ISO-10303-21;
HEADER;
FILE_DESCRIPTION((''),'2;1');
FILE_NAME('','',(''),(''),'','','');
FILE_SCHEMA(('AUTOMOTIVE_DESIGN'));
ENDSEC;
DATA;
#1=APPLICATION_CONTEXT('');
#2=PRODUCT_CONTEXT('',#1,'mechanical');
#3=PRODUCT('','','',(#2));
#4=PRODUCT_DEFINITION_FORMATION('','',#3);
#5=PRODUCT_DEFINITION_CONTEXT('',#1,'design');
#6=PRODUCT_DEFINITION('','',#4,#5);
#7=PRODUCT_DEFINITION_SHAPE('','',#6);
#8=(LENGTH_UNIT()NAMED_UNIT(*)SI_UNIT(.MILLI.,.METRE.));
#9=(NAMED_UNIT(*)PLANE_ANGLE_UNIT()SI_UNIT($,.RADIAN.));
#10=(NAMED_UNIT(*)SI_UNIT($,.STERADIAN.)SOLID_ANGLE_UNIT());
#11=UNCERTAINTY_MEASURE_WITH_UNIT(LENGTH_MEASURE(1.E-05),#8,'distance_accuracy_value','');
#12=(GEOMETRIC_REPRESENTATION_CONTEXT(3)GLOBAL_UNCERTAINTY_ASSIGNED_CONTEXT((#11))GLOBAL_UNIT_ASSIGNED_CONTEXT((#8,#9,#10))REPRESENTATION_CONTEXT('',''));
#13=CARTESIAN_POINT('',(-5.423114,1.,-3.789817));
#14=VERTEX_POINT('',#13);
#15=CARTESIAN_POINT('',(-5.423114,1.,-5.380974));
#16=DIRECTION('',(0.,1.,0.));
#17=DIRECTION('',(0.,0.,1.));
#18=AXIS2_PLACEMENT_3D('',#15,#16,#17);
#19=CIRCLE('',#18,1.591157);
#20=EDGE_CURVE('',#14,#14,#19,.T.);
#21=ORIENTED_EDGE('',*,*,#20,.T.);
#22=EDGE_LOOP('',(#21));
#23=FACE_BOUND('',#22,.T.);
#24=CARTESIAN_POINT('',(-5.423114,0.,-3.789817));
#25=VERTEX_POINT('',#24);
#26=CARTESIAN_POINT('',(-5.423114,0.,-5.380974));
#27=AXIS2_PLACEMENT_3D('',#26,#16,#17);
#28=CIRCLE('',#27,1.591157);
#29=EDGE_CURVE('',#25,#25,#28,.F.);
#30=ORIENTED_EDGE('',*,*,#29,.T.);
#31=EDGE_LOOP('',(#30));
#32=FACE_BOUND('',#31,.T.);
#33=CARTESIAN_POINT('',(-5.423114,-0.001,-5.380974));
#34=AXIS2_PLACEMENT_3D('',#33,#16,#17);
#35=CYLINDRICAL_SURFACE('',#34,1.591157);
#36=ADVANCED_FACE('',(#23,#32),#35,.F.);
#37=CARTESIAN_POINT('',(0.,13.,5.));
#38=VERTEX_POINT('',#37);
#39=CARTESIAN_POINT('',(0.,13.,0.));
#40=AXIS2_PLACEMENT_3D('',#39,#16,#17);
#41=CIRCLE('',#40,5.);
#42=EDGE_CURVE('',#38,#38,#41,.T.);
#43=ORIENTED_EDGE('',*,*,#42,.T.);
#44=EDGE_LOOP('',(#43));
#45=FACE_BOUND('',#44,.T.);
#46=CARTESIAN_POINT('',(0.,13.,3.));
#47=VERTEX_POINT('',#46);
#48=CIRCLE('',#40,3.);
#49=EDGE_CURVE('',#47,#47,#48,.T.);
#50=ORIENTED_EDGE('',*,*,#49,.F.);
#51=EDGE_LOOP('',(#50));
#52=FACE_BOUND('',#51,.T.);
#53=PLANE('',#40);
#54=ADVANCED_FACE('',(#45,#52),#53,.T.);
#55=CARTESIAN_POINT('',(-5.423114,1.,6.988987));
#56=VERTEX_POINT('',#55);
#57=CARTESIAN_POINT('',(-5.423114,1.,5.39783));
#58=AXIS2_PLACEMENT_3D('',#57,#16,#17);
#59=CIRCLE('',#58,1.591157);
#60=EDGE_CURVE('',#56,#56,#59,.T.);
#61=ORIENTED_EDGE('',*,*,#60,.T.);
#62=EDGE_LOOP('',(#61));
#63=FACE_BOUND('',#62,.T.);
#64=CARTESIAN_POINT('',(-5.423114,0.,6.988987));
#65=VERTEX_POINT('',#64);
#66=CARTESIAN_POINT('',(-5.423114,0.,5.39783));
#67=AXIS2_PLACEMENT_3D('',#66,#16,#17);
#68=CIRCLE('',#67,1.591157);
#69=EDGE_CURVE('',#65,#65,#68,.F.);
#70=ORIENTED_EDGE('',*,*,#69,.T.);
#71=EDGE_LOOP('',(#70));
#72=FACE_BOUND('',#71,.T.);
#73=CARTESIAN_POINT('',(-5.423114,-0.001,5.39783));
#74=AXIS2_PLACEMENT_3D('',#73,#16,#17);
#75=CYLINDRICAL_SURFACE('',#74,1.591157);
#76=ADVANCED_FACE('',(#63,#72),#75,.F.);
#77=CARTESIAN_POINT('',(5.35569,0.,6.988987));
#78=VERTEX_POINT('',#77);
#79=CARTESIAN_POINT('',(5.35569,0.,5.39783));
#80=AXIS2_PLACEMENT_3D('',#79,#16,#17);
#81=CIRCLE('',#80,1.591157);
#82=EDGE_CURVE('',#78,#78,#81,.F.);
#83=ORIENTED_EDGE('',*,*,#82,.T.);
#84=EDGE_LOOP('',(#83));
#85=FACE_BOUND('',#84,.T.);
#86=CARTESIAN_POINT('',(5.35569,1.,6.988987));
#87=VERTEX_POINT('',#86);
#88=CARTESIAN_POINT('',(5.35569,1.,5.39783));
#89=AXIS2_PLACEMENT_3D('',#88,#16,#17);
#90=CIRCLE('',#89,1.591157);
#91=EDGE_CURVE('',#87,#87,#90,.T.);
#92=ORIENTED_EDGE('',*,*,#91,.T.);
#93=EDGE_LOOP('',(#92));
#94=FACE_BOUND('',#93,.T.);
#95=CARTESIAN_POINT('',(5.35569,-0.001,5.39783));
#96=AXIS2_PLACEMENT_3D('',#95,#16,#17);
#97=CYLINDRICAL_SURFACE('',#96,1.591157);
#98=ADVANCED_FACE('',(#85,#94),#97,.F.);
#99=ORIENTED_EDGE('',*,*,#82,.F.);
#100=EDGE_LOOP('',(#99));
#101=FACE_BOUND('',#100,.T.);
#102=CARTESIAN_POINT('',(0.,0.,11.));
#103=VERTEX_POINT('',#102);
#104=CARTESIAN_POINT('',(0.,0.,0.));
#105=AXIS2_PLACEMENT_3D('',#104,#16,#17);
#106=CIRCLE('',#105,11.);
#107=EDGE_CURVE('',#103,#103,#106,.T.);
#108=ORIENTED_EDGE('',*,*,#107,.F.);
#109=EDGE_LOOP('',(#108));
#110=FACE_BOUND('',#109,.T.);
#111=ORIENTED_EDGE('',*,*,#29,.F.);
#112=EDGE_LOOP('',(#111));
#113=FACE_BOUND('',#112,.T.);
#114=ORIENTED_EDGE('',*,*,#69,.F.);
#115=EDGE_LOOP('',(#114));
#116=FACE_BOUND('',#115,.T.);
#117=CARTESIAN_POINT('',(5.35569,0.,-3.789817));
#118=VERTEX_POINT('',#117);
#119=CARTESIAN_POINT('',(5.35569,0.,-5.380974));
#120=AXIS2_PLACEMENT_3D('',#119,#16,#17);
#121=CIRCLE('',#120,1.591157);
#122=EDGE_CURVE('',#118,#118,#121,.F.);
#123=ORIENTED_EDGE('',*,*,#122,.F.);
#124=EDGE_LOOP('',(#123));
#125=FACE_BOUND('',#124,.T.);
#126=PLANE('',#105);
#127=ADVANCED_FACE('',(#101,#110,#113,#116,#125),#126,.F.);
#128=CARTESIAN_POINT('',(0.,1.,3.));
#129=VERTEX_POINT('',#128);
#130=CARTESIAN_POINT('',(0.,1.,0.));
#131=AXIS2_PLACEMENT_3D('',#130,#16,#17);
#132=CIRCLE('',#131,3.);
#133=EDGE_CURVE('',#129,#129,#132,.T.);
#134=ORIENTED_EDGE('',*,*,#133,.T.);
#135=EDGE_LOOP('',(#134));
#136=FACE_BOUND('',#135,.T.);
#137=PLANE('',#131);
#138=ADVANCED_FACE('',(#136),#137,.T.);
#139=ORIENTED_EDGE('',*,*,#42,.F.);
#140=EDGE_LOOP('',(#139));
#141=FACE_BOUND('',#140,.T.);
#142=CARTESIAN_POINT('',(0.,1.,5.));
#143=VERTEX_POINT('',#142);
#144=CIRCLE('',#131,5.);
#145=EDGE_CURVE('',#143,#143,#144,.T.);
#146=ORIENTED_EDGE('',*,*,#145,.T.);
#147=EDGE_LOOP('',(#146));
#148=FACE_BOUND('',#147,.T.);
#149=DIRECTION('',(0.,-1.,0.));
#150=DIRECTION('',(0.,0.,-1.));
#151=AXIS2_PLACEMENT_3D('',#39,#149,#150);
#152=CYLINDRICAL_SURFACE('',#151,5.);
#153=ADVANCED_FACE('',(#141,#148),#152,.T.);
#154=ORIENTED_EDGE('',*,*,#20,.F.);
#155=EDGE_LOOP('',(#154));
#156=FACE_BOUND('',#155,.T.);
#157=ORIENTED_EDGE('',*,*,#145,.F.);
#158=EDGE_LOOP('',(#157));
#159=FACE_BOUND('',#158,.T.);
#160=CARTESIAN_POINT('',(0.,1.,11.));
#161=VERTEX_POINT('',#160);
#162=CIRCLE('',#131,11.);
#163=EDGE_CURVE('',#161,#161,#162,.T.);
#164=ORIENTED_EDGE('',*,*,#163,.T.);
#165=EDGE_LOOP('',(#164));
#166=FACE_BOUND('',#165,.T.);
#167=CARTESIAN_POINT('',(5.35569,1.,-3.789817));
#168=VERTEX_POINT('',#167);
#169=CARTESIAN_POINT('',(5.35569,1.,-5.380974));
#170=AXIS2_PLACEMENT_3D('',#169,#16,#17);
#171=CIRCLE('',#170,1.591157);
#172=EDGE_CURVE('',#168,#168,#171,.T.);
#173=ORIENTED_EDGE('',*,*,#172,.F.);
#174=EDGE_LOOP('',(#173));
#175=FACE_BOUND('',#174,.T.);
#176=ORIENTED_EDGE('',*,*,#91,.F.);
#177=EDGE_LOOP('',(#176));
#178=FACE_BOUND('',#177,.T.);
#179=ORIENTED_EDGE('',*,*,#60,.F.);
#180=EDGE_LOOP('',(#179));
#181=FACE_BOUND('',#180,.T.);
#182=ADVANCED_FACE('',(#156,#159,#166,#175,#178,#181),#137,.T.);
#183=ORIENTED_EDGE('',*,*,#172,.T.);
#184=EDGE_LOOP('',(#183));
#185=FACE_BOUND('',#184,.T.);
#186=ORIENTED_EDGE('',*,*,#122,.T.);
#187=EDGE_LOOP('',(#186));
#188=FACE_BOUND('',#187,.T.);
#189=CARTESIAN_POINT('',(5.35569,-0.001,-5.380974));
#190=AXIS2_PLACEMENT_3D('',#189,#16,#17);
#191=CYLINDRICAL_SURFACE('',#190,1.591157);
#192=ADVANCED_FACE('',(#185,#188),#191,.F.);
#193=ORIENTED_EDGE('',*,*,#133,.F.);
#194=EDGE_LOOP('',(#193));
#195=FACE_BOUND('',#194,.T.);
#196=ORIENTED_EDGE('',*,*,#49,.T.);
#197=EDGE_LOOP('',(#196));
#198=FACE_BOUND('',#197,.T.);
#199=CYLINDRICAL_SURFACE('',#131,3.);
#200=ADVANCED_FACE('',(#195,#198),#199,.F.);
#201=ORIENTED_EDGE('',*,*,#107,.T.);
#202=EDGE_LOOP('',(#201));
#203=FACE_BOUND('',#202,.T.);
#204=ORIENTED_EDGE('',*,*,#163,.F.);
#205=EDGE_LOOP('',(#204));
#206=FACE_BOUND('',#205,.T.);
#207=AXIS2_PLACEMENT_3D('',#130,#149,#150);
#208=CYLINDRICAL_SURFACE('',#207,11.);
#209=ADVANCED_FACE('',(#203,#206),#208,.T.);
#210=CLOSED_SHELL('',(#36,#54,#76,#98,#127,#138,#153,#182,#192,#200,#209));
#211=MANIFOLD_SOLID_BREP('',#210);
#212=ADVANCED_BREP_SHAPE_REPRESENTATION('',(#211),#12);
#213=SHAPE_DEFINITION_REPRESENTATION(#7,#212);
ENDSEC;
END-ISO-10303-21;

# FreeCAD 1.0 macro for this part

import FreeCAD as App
import Part
import Sketcher
Q = App.Units.Quantity

doc = App.newDocument("Part")
body = doc.addObject("PartDesign::Body", "Body")

sketch1 = body.newObject("Sketcher::SketchObject", "Sketch")
sketch1.AttachmentSupport = (doc.getObject("XZ_Plane"), [""])
sketch1.MapMode = "FlatFace"
sketch1.addGeometry(Part.Circle(App.Vector(0, 0, 0), App.Vector(0, 0, 1), 11), False)
sketch1.addConstraint([
    Sketcher.Constraint("Coincident", 0, 3, -1, 1),
    Sketcher.Constraint("Diameter", 0, Q("22 mm")),
])
pad1 = body.newObject("PartDesign::Pad", "Pad")
pad1.Profile = sketch1
pad1.Length = 1
pad1.Reversed = True

sketch2 = body.newObject("Sketcher::SketchObject", "Sketch001")
sketch2.AttachmentSupport = (doc.getObject("XZ_Plane"), [""])
sketch2.MapMode = "FlatFace"
sketch2.AttachmentOffset = App.Placement(App.Vector(0, 0, -1), App.Rotation())
sketch2.addGeometry(Part.Circle(App.Vector(0, 0, 0), App.Vector(0, 0, 1), 5), False)
sketch2.addConstraint([
    Sketcher.Constraint("Coincident", 0, 3, -1, 1),
    Sketcher.Constraint("Diameter", 0, Q("10 mm")),
])
pad2 = body.newObject("PartDesign::Pad", "Pad001")
pad2.Profile = sketch2
pad2.Length = 12
pad2.Reversed = True

sketch3 = body.newObject("Sketcher::SketchObject", "Sketch002")
sketch3.AttachmentSupport = (doc.getObject("XZ_Plane"), [""])
sketch3.MapMode = "FlatFace"
sketch3.AttachmentOffset = App.Placement(App.Vector(0, 0, -13), App.Rotation())
sketch3.addGeometry(Part.Circle(App.Vector(0, 0, 0), App.Vector(0, 0, 1), 3), False)
sketch3.addConstraint([
    Sketcher.Constraint("Coincident", 0, 3, -1, 1),
    Sketcher.Constraint("Diameter", 0, Q("6 mm")),
])
pocket1 = body.newObject("PartDesign::Pocket", "Pocket")
pocket1.Profile = sketch3
pocket1.Length = 12
pocket1.Reversed = True

sketch4 = body.newObject("Sketcher::SketchObject", "Sketch003")
sketch4.AttachmentSupport = (doc.getObject("XZ_Plane"), [""])
sketch4.MapMode = "FlatFace"
sketch4.AttachmentOffset = App.Placement(App.Vector(0, 0, -1), App.Rotation())
sketch4.addGeometry(Part.Circle(App.Vector(5.35569, -5.380974, 0), App.Vector(0, 0, 1), 1.591157), False)
sketch4.addConstraint([
    Sketcher.Constraint("Diameter", 0, Q("3.182314 mm")),
    Sketcher.Constraint("DistanceX", -1, 1, 0, 3, Q("5.35569 mm")),
    Sketcher.Constraint("DistanceY", 0, 3, -1, 1, Q("5.380974 mm")),
])
pocket2 = body.newObject("PartDesign::Pocket", "Pocket001")
pocket2.Profile = sketch4
pocket2.Type = "UpToFirst"
pocket2.Reversed = True

sketch5 = body.newObject("Sketcher::SketchObject", "Sketch004")
sketch5.AttachmentSupport = (doc.getObject("XZ_Plane"), [""])
sketch5.MapMode = "FlatFace"
sketch5.AttachmentOffset = App.Placement(App.Vector(0, 0, -1), App.Rotation())
sketch5.addGeometry(Part.Circle(App.Vector(-5.423114, -5.380974, 0), App.Vector(0, 0, 1), 1.591157), False)
sketch5.addConstraint([
    Sketcher.Constraint("Diameter", 0, Q("3.182314 mm")),
    Sketcher.Constraint("DistanceX", 0, 3, -1, 1, Q("5.423114 mm")),
    Sketcher.Constraint("DistanceY", 0, 3, -1, 1, Q("5.380974 mm")),
])
pocket3 = body.newObject("PartDesign::Pocket", "Pocket002")
pocket3.Profile = sketch5
pocket3.Type = "UpToFirst"
pocket3.Reversed = True

sketch6 = body.newObject("Sketcher::SketchObject", "Sketch005")
sketch6.AttachmentSupport = (doc.getObject("XZ_Plane"), [""])
sketch6.MapMode = "FlatFace"
sketch6.AttachmentOffset = App.Placement(App.Vector(0, 0, -1), App.Rotation())
sketch6.addGeometry(Part.Circle(App.Vector(-5.423114, 5.39783, 0), App.Vector(0, 0, 1), 1.591157), False)
sketch6.addConstraint([
    Sketcher.Constraint("Diameter", 0, Q("3.182314 mm")),
    Sketcher.Constraint("DistanceY", -1, 1, 0, 3, Q("5.39783 mm")),
    Sketcher.Constraint("DistanceX", 0, 3, -1, 1, Q("5.423114 mm")),
])
pocket4 = body.newObject("PartDesign::Pocket", "Pocket003")
pocket4.Profile = sketch6
pocket4.Type = "UpToFirst"
pocket4.Reversed = True

sketch7 = body.newObject("Sketcher::SketchObject", "Sketch006")
sketch7.AttachmentSupport = (doc.getObject("XZ_Plane"), [""])
sketch7.MapMode = "FlatFace"
sketch7.AttachmentOffset = App.Placement(App.Vector(0, 0, -1), App.Rotation())
sketch7.addGeometry(Part.Circle(App.Vector(5.35569, 5.39783, 0), App.Vector(0, 0, 1), 1.591157), False)
sketch7.addConstraint([
    Sketcher.Constraint("Diameter", 0, Q("3.182314 mm")),
    Sketcher.Constraint("DistanceX", -1, 1, 0, 3, Q("5.35569 mm")),
    Sketcher.Constraint("DistanceY", -1, 1, 0, 3, Q("5.39783 mm")),
])
pocket5 = body.newObject("PartDesign::Pocket", "Pocket004")
pocket5.Profile = sketch7
pocket5.Type = "UpToFirst"
pocket5.Reversed = True

doc.recompute()
